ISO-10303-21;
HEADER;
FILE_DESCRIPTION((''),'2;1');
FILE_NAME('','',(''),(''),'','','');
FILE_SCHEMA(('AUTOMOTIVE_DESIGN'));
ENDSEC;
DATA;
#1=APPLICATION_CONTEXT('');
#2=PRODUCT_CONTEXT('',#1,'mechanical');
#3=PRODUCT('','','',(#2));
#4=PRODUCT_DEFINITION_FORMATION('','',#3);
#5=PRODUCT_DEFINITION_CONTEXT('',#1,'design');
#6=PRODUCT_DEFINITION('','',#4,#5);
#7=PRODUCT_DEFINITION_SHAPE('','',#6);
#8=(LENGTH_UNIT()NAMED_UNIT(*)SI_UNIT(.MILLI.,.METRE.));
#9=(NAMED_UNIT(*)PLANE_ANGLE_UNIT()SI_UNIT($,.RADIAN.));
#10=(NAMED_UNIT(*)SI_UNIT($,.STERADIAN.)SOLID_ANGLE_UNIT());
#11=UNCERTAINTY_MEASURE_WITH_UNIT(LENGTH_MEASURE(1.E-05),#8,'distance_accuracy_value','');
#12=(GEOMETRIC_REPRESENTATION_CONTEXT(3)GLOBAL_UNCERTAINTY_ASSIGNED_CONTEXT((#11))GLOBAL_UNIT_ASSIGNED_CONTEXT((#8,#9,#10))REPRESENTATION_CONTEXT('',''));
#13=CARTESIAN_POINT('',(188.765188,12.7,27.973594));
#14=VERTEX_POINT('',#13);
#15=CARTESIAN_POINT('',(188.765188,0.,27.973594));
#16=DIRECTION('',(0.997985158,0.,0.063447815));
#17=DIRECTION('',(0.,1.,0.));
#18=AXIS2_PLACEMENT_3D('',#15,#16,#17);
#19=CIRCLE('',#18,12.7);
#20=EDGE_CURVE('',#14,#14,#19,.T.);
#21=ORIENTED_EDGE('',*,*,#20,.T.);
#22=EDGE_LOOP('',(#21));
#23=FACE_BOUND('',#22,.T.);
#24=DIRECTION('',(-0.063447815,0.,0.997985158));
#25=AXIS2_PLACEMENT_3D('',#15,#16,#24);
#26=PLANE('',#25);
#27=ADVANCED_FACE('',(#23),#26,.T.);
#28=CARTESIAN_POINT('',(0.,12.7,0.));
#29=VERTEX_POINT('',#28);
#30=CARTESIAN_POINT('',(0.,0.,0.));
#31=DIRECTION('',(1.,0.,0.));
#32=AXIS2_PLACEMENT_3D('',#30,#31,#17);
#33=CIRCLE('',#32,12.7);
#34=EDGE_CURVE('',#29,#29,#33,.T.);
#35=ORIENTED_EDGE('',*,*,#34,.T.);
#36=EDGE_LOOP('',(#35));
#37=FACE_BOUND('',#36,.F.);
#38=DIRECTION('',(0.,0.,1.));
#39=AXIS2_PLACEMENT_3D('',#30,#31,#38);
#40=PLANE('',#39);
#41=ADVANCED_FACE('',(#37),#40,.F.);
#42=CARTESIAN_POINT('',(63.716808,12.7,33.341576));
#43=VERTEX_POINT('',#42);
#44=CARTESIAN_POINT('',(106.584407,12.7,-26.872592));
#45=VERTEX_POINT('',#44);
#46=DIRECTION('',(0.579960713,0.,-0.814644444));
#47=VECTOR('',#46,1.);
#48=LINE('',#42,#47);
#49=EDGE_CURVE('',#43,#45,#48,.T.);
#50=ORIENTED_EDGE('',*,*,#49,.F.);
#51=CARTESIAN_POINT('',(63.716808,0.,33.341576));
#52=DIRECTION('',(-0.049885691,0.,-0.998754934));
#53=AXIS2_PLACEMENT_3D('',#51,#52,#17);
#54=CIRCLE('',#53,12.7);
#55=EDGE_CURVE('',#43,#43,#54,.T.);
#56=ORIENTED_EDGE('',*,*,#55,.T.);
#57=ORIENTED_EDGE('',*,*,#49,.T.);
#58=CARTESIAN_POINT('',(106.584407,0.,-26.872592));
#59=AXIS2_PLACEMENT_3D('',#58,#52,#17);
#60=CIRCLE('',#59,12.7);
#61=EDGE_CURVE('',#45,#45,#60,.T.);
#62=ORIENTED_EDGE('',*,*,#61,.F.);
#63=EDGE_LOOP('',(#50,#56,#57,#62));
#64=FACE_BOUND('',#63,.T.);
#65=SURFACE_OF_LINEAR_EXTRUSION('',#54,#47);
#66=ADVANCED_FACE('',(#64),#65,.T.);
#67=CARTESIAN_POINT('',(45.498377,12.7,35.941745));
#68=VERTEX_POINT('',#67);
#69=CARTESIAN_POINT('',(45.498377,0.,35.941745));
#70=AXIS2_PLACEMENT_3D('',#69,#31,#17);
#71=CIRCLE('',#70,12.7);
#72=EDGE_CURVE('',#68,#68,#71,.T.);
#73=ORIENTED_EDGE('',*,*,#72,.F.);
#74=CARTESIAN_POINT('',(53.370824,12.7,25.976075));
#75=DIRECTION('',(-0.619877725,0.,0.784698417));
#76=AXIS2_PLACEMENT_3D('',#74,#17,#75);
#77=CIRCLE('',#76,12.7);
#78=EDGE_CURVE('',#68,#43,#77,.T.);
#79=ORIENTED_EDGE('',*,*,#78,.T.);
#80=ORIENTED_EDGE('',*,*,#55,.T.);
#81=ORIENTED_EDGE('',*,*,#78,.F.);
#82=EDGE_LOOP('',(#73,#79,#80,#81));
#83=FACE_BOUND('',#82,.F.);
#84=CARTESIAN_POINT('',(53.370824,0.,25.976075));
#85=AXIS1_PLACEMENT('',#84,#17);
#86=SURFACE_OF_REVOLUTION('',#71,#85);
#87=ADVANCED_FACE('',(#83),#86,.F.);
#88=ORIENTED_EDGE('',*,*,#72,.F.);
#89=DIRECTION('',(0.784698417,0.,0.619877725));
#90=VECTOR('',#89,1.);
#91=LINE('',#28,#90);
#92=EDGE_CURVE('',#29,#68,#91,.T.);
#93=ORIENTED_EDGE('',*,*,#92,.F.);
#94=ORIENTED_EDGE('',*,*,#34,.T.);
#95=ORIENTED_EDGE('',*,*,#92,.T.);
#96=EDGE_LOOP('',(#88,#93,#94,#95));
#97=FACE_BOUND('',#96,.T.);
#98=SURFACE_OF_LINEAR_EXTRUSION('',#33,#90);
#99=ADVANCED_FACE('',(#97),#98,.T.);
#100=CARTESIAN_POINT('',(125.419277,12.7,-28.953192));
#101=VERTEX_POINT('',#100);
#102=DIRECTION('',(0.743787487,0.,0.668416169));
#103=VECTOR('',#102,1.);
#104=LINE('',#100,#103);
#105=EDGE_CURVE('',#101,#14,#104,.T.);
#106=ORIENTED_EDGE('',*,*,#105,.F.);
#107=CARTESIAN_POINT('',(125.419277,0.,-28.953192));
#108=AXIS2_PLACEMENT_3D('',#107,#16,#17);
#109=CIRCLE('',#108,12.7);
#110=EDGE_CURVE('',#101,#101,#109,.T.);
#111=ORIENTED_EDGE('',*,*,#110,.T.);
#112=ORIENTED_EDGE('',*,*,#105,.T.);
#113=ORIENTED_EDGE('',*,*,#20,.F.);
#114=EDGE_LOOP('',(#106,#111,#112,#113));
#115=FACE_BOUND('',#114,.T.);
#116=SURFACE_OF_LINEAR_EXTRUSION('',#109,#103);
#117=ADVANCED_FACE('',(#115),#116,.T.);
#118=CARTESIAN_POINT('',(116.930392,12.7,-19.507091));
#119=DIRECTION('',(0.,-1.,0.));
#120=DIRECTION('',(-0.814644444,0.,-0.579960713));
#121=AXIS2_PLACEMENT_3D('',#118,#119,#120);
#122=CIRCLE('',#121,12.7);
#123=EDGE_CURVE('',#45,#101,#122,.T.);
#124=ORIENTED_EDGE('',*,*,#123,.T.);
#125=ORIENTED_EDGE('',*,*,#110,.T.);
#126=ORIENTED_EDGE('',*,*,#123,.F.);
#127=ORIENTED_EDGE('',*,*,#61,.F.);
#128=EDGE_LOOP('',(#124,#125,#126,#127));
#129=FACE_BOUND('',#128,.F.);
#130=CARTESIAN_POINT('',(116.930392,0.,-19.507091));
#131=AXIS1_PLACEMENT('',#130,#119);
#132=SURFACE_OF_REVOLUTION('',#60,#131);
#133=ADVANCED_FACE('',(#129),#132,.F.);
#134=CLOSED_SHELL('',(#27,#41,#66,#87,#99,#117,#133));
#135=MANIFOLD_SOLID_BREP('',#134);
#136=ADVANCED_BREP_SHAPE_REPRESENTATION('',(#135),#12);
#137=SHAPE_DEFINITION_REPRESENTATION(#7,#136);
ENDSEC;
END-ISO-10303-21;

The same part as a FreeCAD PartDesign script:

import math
import FreeCAD as App
import Part
import Sketcher
from FreeCAD import Vector
Q = App.Units.Quantity

doc = App.newDocument("Part")
body = doc.addObject("PartDesign::Body", "Body")

sketch1 = doc.addObject("Sketcher::SketchObject", "Sketch")
body.addObject(sketch1)
sketch1.AttachmentSupport = (doc.YZ_Plane, [""])
sketch1.MapMode = "FlatFace"
sketch1.addGeometry(Part.Circle(Vector(0, 0, 0), Vector(0, 0, 1), 12.7), False)
sketch1.addConstraint([
    Sketcher.Constraint("Coincident", 0, 3, -1, 1),
    Sketcher.Constraint("Diameter", 0, Q("1 in")),
])

sketch2 = doc.addObject("Sketcher::SketchObject", "Sketch001")
body.addObject(sketch2)
sketch2.AttachmentSupport = (doc.XZ_Plane, [""])
sketch2.MapMode = "FlatFace"
sketch2.addGeometry([
    Part.LineSegment(Vector(0, 0, 0), Vector(45.498377, 35.941745, 0)),
    Part.ArcOfCircle(Part.Circle(Vector(53.370824, 25.976075, 0), Vector(0, 0, 1), 12.7), math.radians(35.447779), math.radians(128.307206)),
    Part.LineSegment(Vector(63.716808, 33.341576, 0), Vector(106.584407, -26.872592, 0)),
    Part.ArcOfCircle(Part.Circle(Vector(116.930392, -19.507091, 0), Vector(0, 0, 1), 12.7), math.radians(-144.552221), math.radians(-48.055059)),
    Part.LineSegment(Vector(125.419277, -28.953192, 0), Vector(188.765188, 27.973594, 0)),
], False)
sketch2.addConstraint([
    Sketcher.Constraint("Tangent", 0, 2, 1, 2),
    Sketcher.Constraint("Tangent", 1, 1, 2, 1),
    Sketcher.Constraint("Tangent", 2, 2, 3, 1),
    Sketcher.Constraint("Tangent", 3, 2, 4, 1),
    Sketcher.Constraint("Coincident", 0, 1, -1, 1),
    Sketcher.Constraint("Equal", 1, 3),
    Sketcher.Constraint("Radius", 1, Q("0.5 in")),
    Sketcher.Constraint("DistanceY", 1, 3, 1, 1, Q("7.365501 mm")),
    Sketcher.Constraint("DistanceX", 1, 1, 2, 2, Q("42.867599 mm")),
    Sketcher.Constraint("DistanceY", 3, 2, 3, 3, Q("9.446101 mm")),
    Sketcher.Constraint("DistanceX", 0, 2, 3, 2, Q("79.920901 mm")),
    Sketcher.Constraint("Distance", 0, Q("57.981991 mm")),
    Sketcher.Constraint("Distance", 4, Q("85.166681 mm")),
])
doc.recompute()

additivepipe = doc.addObject("PartDesign::AdditivePipe", "AdditivePipe")
body.addObject(additivepipe)
additivepipe.Profile = sketch1
additivepipe.Spine = (sketch2, ["Edge1", "Edge2", "Edge3", "Edge4", "Edge5"])

doc.recompute()
